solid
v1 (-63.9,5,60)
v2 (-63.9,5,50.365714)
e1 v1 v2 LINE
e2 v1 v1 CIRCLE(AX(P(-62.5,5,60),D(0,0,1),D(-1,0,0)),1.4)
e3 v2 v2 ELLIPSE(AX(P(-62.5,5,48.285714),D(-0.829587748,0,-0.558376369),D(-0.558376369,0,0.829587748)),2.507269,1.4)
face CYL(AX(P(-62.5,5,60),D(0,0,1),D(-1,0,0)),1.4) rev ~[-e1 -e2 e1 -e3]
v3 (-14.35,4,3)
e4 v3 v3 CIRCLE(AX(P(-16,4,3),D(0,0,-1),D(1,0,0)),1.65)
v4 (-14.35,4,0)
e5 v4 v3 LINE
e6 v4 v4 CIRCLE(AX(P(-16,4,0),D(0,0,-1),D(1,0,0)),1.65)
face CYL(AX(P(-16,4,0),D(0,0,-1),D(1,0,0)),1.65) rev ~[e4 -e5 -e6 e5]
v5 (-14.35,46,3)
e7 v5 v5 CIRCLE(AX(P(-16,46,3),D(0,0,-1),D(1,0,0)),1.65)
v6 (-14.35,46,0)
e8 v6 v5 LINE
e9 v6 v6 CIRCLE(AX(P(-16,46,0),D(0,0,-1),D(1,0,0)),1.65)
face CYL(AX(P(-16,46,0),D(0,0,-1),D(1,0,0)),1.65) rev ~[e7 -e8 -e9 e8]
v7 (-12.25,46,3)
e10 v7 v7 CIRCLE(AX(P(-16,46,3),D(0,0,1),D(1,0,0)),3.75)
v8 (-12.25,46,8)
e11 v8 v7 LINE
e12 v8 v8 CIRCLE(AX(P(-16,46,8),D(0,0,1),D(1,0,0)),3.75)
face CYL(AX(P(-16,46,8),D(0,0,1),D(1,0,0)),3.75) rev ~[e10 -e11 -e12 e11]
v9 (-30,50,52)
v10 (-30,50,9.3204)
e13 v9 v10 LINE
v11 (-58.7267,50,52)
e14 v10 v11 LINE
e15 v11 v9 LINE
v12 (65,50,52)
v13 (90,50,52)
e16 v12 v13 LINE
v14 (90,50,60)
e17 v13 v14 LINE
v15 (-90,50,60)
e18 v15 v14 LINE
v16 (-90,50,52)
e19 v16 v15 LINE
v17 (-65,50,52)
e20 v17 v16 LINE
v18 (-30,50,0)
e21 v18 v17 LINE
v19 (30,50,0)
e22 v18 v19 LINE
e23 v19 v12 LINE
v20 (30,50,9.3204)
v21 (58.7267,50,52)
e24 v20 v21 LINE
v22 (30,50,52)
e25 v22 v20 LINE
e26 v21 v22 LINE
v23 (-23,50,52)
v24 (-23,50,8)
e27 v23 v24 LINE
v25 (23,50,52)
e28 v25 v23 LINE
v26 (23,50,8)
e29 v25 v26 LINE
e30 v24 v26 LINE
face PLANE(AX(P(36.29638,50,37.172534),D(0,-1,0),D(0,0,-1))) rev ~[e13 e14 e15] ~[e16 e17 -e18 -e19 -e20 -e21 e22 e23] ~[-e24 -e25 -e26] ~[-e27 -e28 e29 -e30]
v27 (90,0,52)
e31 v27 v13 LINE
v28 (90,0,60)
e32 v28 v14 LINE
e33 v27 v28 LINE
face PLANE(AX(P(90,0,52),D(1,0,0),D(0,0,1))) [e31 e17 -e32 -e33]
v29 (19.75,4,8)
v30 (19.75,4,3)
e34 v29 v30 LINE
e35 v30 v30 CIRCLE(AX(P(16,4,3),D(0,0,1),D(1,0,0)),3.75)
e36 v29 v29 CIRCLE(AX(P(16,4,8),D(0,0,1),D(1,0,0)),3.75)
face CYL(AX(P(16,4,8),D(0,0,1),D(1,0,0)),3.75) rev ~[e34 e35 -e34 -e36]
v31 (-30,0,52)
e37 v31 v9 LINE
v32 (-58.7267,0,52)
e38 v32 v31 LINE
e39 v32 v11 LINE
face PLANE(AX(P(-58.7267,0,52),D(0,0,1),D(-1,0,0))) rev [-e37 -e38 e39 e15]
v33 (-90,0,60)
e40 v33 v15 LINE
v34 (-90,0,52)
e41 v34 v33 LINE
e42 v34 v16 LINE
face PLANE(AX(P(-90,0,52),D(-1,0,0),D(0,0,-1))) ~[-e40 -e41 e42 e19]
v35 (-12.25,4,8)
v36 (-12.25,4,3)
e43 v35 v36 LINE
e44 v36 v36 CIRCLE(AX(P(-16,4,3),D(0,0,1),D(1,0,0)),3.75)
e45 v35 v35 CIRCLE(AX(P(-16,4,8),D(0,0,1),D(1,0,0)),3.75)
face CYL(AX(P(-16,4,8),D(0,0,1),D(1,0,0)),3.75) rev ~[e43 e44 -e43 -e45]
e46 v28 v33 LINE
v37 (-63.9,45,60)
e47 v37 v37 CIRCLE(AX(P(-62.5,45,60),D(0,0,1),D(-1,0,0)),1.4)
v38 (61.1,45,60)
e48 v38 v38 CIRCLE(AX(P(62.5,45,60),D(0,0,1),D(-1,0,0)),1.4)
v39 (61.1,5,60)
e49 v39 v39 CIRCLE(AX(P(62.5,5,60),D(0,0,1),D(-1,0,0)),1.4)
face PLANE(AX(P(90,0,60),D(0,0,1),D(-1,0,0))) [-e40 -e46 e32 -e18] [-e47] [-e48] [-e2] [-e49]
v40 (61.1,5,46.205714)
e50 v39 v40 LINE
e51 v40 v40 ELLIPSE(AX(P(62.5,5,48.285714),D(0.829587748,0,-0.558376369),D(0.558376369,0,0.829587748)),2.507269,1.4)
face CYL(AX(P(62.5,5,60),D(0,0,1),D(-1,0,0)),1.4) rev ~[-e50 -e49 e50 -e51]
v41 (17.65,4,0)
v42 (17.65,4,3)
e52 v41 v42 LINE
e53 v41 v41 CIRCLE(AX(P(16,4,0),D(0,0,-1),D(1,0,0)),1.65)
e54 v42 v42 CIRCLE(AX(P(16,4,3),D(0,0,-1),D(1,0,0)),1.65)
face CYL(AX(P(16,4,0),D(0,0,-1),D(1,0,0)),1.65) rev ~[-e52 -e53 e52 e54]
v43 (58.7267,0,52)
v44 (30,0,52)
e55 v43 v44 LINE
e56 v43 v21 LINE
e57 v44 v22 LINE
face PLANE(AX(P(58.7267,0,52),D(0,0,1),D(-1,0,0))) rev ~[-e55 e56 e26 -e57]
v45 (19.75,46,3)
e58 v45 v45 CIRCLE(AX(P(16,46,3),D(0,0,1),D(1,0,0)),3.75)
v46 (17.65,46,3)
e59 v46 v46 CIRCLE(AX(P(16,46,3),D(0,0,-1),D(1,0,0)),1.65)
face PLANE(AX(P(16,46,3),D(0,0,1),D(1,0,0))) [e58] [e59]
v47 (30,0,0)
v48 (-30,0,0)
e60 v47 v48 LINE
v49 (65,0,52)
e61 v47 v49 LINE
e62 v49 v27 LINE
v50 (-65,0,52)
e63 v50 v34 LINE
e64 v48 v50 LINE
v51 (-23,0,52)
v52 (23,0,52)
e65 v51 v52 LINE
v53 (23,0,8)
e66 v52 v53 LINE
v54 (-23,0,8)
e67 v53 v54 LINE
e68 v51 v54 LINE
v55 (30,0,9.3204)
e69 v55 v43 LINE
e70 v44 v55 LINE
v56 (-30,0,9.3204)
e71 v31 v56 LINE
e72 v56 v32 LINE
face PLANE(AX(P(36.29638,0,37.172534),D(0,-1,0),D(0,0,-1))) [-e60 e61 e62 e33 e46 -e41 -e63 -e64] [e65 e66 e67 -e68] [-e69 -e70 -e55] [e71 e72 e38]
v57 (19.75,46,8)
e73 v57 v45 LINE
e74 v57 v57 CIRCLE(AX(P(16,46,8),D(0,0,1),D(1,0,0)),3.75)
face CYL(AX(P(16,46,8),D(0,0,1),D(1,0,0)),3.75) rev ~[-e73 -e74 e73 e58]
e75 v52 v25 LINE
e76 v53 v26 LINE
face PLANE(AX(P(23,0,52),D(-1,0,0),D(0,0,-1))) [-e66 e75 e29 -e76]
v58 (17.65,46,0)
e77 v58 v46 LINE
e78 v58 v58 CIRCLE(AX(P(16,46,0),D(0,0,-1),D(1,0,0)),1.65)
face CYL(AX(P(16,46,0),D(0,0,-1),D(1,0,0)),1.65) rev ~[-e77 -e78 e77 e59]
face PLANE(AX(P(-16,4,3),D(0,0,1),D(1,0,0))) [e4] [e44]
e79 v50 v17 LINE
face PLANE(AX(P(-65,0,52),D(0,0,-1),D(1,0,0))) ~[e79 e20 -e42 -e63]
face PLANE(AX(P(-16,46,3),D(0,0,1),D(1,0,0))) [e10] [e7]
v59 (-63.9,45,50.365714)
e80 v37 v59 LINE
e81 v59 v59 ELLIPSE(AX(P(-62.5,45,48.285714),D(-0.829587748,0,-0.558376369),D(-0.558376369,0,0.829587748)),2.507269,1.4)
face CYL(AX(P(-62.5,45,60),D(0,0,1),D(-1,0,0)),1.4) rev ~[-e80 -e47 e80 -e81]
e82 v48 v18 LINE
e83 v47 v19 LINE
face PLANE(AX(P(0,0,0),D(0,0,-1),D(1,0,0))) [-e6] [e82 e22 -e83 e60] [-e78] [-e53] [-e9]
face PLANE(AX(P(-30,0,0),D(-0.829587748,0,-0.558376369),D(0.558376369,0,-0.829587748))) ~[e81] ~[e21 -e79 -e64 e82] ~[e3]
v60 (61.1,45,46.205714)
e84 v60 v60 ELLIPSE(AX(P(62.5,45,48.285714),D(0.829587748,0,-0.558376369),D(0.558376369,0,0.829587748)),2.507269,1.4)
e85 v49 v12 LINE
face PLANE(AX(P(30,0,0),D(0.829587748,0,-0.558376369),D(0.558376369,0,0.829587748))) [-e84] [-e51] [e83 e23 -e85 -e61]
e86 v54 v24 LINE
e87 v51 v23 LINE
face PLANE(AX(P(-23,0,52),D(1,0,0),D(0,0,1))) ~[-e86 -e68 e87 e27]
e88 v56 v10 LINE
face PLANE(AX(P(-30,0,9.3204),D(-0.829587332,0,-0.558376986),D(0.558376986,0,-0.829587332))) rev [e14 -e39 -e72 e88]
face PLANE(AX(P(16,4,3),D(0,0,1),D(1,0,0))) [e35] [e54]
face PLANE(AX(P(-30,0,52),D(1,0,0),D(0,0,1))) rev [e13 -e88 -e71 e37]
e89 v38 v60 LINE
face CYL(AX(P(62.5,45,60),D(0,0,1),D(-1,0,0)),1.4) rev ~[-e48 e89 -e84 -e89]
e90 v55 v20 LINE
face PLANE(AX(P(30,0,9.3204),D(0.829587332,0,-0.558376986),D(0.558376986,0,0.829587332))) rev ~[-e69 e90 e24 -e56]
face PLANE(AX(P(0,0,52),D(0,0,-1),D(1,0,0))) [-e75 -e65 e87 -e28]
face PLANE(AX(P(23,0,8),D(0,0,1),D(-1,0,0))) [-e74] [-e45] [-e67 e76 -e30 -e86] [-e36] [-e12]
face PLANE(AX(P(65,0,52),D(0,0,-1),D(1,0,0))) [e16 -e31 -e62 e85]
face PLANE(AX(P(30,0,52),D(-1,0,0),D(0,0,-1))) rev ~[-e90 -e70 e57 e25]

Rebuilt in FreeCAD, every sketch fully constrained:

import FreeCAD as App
import Part
import Sketcher
Q = App.Units.Quantity

doc = App.newDocument("Part")
body = doc.addObject("PartDesign::Body", "Body")

# Sketch on XZ plane
sketch1 = body.newObject("Sketcher::SketchObject", "Sketch")
sketch1.AttachmentSupport = (doc.getObject("XZ_Plane"), [""])
sketch1.MapMode = "FlatFace"
sketch1.addGeometry([
    Part.LineSegment(App.Vector(0, 0, 0), App.Vector(30, 0, 0)),  # 0
    Part.LineSegment(App.Vector(30, 0, 0), App.Vector(65, 52, 0)),  # 1
    Part.LineSegment(App.Vector(65, 52, 0), App.Vector(90, 52, 0)),  # 2
    Part.LineSegment(App.Vector(90, 52, 0), App.Vector(90, 60, 0)),  # 3
    Part.LineSegment(App.Vector(90, 60, 0), App.Vector(0, 60, 0)),  # 4
    Part.LineSegment(App.Vector(0, 60, 0), App.Vector(0, 52, 0)),  # 5
    Part.LineSegment(App.Vector(0, 52, 0), App.Vector(23, 52, 0)),  # 6
    Part.LineSegment(App.Vector(23, 52, 0), App.Vector(23, 8, 0)),  # 7
    Part.LineSegment(App.Vector(23, 8, 0), App.Vector(0, 8, 0)),  # 8
    Part.LineSegment(App.Vector(0, 8, 0), App.Vector(0, 0, 0)),  # 9
], False)
sketch1.addConstraint([
    Sketcher.Constraint("Coincident", 0, 2, 1, 1),
    Sketcher.Constraint("Coincident", 1, 2, 2, 1),
    Sketcher.Constraint("Coincident", 2, 2, 3, 1),
    Sketcher.Constraint("Coincident", 3, 2, 4, 1),
    Sketcher.Constraint("Coincident", 4, 2, 5, 1),
    Sketcher.Constraint("Coincident", 5, 2, 6, 1),
    Sketcher.Constraint("Coincident", 6, 2, 7, 1),
    Sketcher.Constraint("Coincident", 7, 2, 8, 1),
    Sketcher.Constraint("Coincident", 8, 2, 9, 1),
    Sketcher.Constraint("Coincident", 9, 2, 0, 1),
    Sketcher.Constraint("Horizontal", 0),
    Sketcher.Constraint("Horizontal", 2),
    Sketcher.Constraint("Vertical", 3),
    Sketcher.Constraint("Horizontal", 4),
    Sketcher.Constraint("Vertical", 5),
    Sketcher.Constraint("Horizontal", 6),
    Sketcher.Constraint("Vertical", 7),
    Sketcher.Constraint("Horizontal", 8),
    Sketcher.Constraint("Vertical", 9),
    Sketcher.Constraint("Coincident", 9, 2, -1, 1),
    Sketcher.Constraint("PointOnObject", 4, 2, -2),
    Sketcher.Constraint("Horizontal", 2, 2, 5, 2),
    Sketcher.Constraint("Equal", 5, 9),
    Sketcher.Constraint("DistanceX", 6, 1, 6, 2, Q("23 mm")),
    Sketcher.Constraint("DistanceX", 0, 1, 0, 2, Q("30 mm")),
    Sketcher.Constraint("DistanceX", 2, 1, 2, 2, Q("25 mm")),
    Sketcher.Constraint("DistanceX", 4, 2, 4, 1, Q("90 mm")),
    Sketcher.Constraint("DistanceY", 3, 1, 3, 2, Q("8 mm")),
    Sketcher.Constraint("DistanceY", 7, 2, 7, 1, Q("44 mm")),
])
pad1 = body.newObject("PartDesign::Pad", "Pad")
pad1.Profile = sketch1
pad1.Length = 50
pad1.Reversed = True
doc.recompute()

mirrored = body.newObject("PartDesign::Mirrored", "Mirrored")
mirrored.Originals = [pad1]
mirrored.MirrorPlane = (doc.getObject("YZ_Plane"), [""])
body.Tip = mirrored

# Sketch on XZ plane
sketch2 = body.newObject("Sketcher::SketchObject", "Sketch001")
sketch2.AttachmentSupport = (doc.getObject("XZ_Plane"), [""])
sketch2.MapMode = "FlatFace"
sketch2.addGeometry([
    Part.LineSegment(App.Vector(30, 52, 0), App.Vector(30, 9, 0)),
    Part.LineSegment(App.Vector(30, 9, 0), App.Vector(59, 52, 0)),
    Part.LineSegment(App.Vector(59, 52, 0), App.Vector(30, 52, 0)),
], False)
sketch2.addConstraint([
    Sketcher.Constraint("Coincident", 0, 2, 1, 1),
    Sketcher.Constraint("Coincident", 1, 2, 2, 1),
    Sketcher.Constraint("Coincident", 2, 2, 0, 1),
    Sketcher.Constraint("Vertical", 0),
    Sketcher.Constraint("Horizontal", 2),
    Sketcher.Constraint("DistanceX", -1, 1, 0, 2, Q("30 mm")),
    Sketcher.Constraint("DistanceY", -1, 1, 1, 2, Q("52 mm")),
    Sketcher.Constraint("DistanceX", 2, 2, 2, 1, Q("28.7267 mm")),
    Sketcher.Constraint("DistanceY", 0, 2, 0, 1, Q("42.6796 mm")),
])
pocket1 = body.newObject("PartDesign::Pocket", "Pocket")
pocket1.Profile = sketch2
pocket1.Type = "ThroughAll"

# Sketch on XY plane
sketch3 = body.newObject("Sketcher::SketchObject", "Sketch002")
sketch3.AttachmentSupport = (doc.getObject("XY_Plane"), [""])
sketch3.MapMode = "FlatFace"
sketch3.addGeometry([
    Part.Circle(App.Vector(-16, 4, 0), App.Vector(0, 0, 1), 1.6),
    Part.Circle(App.Vector(16, 4, 0), App.Vector(0, 0, 1), 1.6),
    Part.Circle(App.Vector(16, 46, 0), App.Vector(0, 0, 1), 1.6),
    Part.Circle(App.Vector(-16, 46, 0), App.Vector(0, 0, 1), 1.6),
], False)
sketch3.addConstraint([
    Sketcher.Constraint("Equal", 0, 1),
    Sketcher.Constraint("Equal", 1, 2),
    Sketcher.Constraint("Equal", 2, 3),
    Sketcher.Constraint("Symmetric", 0, 3, 1, 3, -2),
    Sketcher.Constraint("Symmetric", 2, 3, 3, 3, -2),
    Sketcher.Constraint("Vertical", 1, 3, 2, 3),
    Sketcher.Constraint("Diameter", 0, Q("3.3 mm")),
    Sketcher.Constraint("DistanceX", 0, 3, -1, 1, Q("16 mm")),
    Sketcher.Constraint("DistanceY", -1, 1, 0, 3, Q("4 mm")),
    Sketcher.Constraint("DistanceY", -1, 1, 2, 3, Q("46 mm")),
])
pocket2 = body.newObject("PartDesign::Pocket", "Pocket001")
pocket2.Profile = sketch3
pocket2.Type = "UpToFirst"
pocket2.Reversed = True

# Sketch on XY plane
sketch4 = body.newObject("Sketcher::SketchObject", "Sketch003")
sketch4.AttachmentSupport = (doc.getObject("XY_Plane"), [""])
sketch4.MapMode = "FlatFace"
sketch4.AttachmentOffset = App.Placement(App.Vector(0, 0, 8), App.Rotation())
sketch4.addGeometry([
    Part.Circle(App.Vector(-16, 4, 0), App.Vector(0, 0, 1), 3.8),
    Part.Circle(App.Vector(16, 4, 0), App.Vector(0, 0, 1), 3.8),
    Part.Circle(App.Vector(-16, 46, 0), App.Vector(0, 0, 1), 3.8),
    Part.Circle(App.Vector(16, 46, 0), App.Vector(0, 0, 1), 3.8),
], False)
sketch4.addConstraint([
    Sketcher.Constraint("Equal", 0, 1),
    Sketcher.Constraint("Equal", 1, 2),
    Sketcher.Constraint("Equal", 2, 3),
    Sketcher.Constraint("Symmetric", 0, 3, 1, 3, -2),
    Sketcher.Constraint("Symmetric", 2, 3, 3, 3, -2),
    Sketcher.Constraint("Vertical", 0, 3, 2, 3),
    Sketcher.Constraint("Diameter", 0, Q("7.5 mm")),
    Sketcher.Constraint("DistanceX", 0, 3, -1, 1, Q("16 mm")),
    Sketcher.Constraint("DistanceY", -1, 1, 0, 3, Q("4 mm")),
    Sketcher.Constraint("DistanceY", -1, 1, 2, 3, Q("46 mm")),
])
pocket3 = body.newObject("PartDesign::Pocket", "Pocket002")
pocket3.Profile = sketch4
pocket3.Length = 5

# Sketch on XY plane
sketch5 = body.newObject("Sketcher::SketchObject", "Sketch004")
sketch5.AttachmentSupport = (doc.getObject("XY_Plane"), [""])
sketch5.MapMode = "FlatFace"
sketch5.AttachmentOffset = App.Placement(App.Vector(0, 0, 60), App.Rotation())
sketch5.addGeometry([
    Part.Circle(App.Vector(62.5, 5, 0), App.Vector(0, 0, 1), 1.4),
    Part.Circle(App.Vector(62.5, 45, 0), App.Vector(0, 0, 1), 1.4),
    Part.Circle(App.Vector(-62.5, 45, 0), App.Vector(0, 0, 1), 1.4),
    Part.Circle(App.Vector(-62.5, 5, 0), App.Vector(0, 0, 1), 1.4),
], False)
sketch5.addConstraint([
    Sketcher.Constraint("Equal", 0, 1),
    Sketcher.Constraint("Equal", 1, 2),
    Sketcher.Constraint("Equal", 2, 3),
    Sketcher.Constraint("Symmetric", 1, 3, 2, 3, -2),
    Sketcher.Constraint("Symmetric", 0, 3, 3, 3, -2),
    Sketcher.Constraint("Vertical", 0, 3, 1, 3),
    Sketcher.Constraint("Diameter", 0, Q("2.8 mm")),
    Sketcher.Constraint("DistanceX", -1, 1, 0, 3, Q("62.5 mm")),
    Sketcher.Constraint("DistanceY", -1, 1, 0, 3, Q("5 mm")),
    Sketcher.Constraint("DistanceY", -1, 1, 1, 3, Q("45 mm")),
])
pocket4 = body.newObject("PartDesign::Pocket", "Pocket003")
pocket4.Profile = sketch5
pocket4.Type = "ThroughAll"
doc.recompute()

mirrored2 = body.newObject("PartDesign::Mirrored", "Mirrored001")
mirrored2.Originals = [pocket1]
mirrored2.MirrorPlane = (doc.getObject("YZ_Plane"), [""])
body.Tip = mirrored2

doc.recompute()
